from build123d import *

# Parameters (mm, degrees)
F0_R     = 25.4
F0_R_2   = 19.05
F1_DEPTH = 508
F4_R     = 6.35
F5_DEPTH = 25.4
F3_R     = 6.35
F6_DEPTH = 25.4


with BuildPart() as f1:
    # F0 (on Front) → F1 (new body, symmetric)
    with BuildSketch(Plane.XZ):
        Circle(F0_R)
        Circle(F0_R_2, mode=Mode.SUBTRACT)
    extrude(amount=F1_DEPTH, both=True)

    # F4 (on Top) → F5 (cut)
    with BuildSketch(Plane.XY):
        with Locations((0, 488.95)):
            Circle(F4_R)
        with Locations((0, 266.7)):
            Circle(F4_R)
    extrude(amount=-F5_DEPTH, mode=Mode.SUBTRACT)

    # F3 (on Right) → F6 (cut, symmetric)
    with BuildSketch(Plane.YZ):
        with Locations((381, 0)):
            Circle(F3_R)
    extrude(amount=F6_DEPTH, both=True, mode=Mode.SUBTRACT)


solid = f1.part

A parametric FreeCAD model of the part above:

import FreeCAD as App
import Part
import Sketcher

V = App.Vector
Q = App.Units.Quantity

doc = App.newDocument("Part")
params = doc.addObject("Spreadsheet::Sheet", "Params")
for row, (alias, value) in enumerate([
    ("sketch1_diameter", "2 in"),
    ("sketch1_diameter2", "1.5 in"),
    ("pad1_length", "40 in"),
    ("sketch2_diameter", "0.5 in"),
    ("pocket1_length", "1 in"),
    ("sketch3_diameter", "0.5 in"),
    ("pocket2_length", "2 in"),
], start=1):
    params.set(f"A{row}", alias)
    params.set(f"B{row}", "=" + value)
    params.setAlias(f"B{row}", alias)

body = doc.addObject("PartDesign::Body", "Body")

sketch1 = body.newObject("Sketcher::SketchObject", "Sketch")
sketch1.AttachmentSupport = (doc.getObject("XZ_Plane"), [""])
sketch1.MapMode = "FlatFace"
sketch1.addGeometry(Part.Circle(V(0, 0, 0), V(0, 0, 1), 25), False)
sketch1.addGeometry(Part.Circle(V(0, 0, 0), V(0, 0, 1), 19), False)
sketch1.addConstraint(Sketcher.Constraint("Coincident", 0, 3, -1, 1))
sketch1.addConstraint(Sketcher.Constraint("Coincident", 1, 3, -1, 1))
sketch1.addConstraint(Sketcher.Constraint("Diameter", 0, Q("2 in")))
sketch1.addConstraint(Sketcher.Constraint("Diameter", 1, Q("1.5 in")))
sketch1.setExpression("Constraints[2]", "Params.sketch1_diameter")
sketch1.setExpression("Constraints[3]", "Params.sketch1_diameter2")
pad1 = body.newObject("PartDesign::Pad", "Pad")
pad1.Profile = sketch1
pad1.setExpression("Length", "Params.pad1_length")
pad1.Midplane = True

sketch2 = body.newObject("Sketcher::SketchObject", "Sketch001")
sketch2.AttachmentSupport = (doc.getObject("XY_Plane"), [""])
sketch2.MapMode = "FlatFace"
sketch2.addGeometry(Part.Circle(V(0, 489, 0), V(0, 0, 1), 6), False)
sketch2.addGeometry(Part.Circle(V(0, 267, 0), V(0, 0, 1), 6), False)
sketch2.addConstraint(Sketcher.Constraint("Equal", 0, 1))
sketch2.addConstraint(Sketcher.Constraint("PointOnObject", 0, 3, -2))
sketch2.addConstraint(Sketcher.Constraint("PointOnObject", 1, 3, -2))
sketch2.addConstraint(Sketcher.Constraint("Diameter", 0, Q("0.5 in")))
sketch2.addConstraint(Sketcher.Constraint("DistanceY", -1, 1, 1, 3, Q("10.5 in")))
sketch2.addConstraint(Sketcher.Constraint("DistanceY", -1, 1, 0, 3, Q("19.25 in")))
sketch2.setExpression("Constraints[3]", "Params.sketch2_diameter")
pocket1 = body.newObject("PartDesign::Pocket", "Pocket")
pocket1.Profile = sketch2
pocket1.setExpression("Length", "Params.pocket1_length")

sketch3 = body.newObject("Sketcher::SketchObject", "Sketch002")
sketch3.AttachmentSupport = (doc.getObject("YZ_Plane"), [""])
sketch3.MapMode = "FlatFace"
sketch3.addGeometry(Part.Circle(V(381, 0, 0), V(0, 0, 1), 6), False)
sketch3.addConstraint(Sketcher.Constraint("PointOnObject", 0, 3, -1))
sketch3.addConstraint(Sketcher.Constraint("Diameter", 0, Q("0.5 in")))
sketch3.addConstraint(Sketcher.Constraint("DistanceX", -1, 1, 0, 3, Q("15 in")))
sketch3.setExpression("Constraints[1]", "Params.sketch3_diameter")
pocket2 = body.newObject("PartDesign::Pocket", "Pocket001")
pocket2.Profile = sketch3
pocket2.setExpression("Length", "Params.pocket2_length")
pocket2.Midplane = True

doc.recompute()
